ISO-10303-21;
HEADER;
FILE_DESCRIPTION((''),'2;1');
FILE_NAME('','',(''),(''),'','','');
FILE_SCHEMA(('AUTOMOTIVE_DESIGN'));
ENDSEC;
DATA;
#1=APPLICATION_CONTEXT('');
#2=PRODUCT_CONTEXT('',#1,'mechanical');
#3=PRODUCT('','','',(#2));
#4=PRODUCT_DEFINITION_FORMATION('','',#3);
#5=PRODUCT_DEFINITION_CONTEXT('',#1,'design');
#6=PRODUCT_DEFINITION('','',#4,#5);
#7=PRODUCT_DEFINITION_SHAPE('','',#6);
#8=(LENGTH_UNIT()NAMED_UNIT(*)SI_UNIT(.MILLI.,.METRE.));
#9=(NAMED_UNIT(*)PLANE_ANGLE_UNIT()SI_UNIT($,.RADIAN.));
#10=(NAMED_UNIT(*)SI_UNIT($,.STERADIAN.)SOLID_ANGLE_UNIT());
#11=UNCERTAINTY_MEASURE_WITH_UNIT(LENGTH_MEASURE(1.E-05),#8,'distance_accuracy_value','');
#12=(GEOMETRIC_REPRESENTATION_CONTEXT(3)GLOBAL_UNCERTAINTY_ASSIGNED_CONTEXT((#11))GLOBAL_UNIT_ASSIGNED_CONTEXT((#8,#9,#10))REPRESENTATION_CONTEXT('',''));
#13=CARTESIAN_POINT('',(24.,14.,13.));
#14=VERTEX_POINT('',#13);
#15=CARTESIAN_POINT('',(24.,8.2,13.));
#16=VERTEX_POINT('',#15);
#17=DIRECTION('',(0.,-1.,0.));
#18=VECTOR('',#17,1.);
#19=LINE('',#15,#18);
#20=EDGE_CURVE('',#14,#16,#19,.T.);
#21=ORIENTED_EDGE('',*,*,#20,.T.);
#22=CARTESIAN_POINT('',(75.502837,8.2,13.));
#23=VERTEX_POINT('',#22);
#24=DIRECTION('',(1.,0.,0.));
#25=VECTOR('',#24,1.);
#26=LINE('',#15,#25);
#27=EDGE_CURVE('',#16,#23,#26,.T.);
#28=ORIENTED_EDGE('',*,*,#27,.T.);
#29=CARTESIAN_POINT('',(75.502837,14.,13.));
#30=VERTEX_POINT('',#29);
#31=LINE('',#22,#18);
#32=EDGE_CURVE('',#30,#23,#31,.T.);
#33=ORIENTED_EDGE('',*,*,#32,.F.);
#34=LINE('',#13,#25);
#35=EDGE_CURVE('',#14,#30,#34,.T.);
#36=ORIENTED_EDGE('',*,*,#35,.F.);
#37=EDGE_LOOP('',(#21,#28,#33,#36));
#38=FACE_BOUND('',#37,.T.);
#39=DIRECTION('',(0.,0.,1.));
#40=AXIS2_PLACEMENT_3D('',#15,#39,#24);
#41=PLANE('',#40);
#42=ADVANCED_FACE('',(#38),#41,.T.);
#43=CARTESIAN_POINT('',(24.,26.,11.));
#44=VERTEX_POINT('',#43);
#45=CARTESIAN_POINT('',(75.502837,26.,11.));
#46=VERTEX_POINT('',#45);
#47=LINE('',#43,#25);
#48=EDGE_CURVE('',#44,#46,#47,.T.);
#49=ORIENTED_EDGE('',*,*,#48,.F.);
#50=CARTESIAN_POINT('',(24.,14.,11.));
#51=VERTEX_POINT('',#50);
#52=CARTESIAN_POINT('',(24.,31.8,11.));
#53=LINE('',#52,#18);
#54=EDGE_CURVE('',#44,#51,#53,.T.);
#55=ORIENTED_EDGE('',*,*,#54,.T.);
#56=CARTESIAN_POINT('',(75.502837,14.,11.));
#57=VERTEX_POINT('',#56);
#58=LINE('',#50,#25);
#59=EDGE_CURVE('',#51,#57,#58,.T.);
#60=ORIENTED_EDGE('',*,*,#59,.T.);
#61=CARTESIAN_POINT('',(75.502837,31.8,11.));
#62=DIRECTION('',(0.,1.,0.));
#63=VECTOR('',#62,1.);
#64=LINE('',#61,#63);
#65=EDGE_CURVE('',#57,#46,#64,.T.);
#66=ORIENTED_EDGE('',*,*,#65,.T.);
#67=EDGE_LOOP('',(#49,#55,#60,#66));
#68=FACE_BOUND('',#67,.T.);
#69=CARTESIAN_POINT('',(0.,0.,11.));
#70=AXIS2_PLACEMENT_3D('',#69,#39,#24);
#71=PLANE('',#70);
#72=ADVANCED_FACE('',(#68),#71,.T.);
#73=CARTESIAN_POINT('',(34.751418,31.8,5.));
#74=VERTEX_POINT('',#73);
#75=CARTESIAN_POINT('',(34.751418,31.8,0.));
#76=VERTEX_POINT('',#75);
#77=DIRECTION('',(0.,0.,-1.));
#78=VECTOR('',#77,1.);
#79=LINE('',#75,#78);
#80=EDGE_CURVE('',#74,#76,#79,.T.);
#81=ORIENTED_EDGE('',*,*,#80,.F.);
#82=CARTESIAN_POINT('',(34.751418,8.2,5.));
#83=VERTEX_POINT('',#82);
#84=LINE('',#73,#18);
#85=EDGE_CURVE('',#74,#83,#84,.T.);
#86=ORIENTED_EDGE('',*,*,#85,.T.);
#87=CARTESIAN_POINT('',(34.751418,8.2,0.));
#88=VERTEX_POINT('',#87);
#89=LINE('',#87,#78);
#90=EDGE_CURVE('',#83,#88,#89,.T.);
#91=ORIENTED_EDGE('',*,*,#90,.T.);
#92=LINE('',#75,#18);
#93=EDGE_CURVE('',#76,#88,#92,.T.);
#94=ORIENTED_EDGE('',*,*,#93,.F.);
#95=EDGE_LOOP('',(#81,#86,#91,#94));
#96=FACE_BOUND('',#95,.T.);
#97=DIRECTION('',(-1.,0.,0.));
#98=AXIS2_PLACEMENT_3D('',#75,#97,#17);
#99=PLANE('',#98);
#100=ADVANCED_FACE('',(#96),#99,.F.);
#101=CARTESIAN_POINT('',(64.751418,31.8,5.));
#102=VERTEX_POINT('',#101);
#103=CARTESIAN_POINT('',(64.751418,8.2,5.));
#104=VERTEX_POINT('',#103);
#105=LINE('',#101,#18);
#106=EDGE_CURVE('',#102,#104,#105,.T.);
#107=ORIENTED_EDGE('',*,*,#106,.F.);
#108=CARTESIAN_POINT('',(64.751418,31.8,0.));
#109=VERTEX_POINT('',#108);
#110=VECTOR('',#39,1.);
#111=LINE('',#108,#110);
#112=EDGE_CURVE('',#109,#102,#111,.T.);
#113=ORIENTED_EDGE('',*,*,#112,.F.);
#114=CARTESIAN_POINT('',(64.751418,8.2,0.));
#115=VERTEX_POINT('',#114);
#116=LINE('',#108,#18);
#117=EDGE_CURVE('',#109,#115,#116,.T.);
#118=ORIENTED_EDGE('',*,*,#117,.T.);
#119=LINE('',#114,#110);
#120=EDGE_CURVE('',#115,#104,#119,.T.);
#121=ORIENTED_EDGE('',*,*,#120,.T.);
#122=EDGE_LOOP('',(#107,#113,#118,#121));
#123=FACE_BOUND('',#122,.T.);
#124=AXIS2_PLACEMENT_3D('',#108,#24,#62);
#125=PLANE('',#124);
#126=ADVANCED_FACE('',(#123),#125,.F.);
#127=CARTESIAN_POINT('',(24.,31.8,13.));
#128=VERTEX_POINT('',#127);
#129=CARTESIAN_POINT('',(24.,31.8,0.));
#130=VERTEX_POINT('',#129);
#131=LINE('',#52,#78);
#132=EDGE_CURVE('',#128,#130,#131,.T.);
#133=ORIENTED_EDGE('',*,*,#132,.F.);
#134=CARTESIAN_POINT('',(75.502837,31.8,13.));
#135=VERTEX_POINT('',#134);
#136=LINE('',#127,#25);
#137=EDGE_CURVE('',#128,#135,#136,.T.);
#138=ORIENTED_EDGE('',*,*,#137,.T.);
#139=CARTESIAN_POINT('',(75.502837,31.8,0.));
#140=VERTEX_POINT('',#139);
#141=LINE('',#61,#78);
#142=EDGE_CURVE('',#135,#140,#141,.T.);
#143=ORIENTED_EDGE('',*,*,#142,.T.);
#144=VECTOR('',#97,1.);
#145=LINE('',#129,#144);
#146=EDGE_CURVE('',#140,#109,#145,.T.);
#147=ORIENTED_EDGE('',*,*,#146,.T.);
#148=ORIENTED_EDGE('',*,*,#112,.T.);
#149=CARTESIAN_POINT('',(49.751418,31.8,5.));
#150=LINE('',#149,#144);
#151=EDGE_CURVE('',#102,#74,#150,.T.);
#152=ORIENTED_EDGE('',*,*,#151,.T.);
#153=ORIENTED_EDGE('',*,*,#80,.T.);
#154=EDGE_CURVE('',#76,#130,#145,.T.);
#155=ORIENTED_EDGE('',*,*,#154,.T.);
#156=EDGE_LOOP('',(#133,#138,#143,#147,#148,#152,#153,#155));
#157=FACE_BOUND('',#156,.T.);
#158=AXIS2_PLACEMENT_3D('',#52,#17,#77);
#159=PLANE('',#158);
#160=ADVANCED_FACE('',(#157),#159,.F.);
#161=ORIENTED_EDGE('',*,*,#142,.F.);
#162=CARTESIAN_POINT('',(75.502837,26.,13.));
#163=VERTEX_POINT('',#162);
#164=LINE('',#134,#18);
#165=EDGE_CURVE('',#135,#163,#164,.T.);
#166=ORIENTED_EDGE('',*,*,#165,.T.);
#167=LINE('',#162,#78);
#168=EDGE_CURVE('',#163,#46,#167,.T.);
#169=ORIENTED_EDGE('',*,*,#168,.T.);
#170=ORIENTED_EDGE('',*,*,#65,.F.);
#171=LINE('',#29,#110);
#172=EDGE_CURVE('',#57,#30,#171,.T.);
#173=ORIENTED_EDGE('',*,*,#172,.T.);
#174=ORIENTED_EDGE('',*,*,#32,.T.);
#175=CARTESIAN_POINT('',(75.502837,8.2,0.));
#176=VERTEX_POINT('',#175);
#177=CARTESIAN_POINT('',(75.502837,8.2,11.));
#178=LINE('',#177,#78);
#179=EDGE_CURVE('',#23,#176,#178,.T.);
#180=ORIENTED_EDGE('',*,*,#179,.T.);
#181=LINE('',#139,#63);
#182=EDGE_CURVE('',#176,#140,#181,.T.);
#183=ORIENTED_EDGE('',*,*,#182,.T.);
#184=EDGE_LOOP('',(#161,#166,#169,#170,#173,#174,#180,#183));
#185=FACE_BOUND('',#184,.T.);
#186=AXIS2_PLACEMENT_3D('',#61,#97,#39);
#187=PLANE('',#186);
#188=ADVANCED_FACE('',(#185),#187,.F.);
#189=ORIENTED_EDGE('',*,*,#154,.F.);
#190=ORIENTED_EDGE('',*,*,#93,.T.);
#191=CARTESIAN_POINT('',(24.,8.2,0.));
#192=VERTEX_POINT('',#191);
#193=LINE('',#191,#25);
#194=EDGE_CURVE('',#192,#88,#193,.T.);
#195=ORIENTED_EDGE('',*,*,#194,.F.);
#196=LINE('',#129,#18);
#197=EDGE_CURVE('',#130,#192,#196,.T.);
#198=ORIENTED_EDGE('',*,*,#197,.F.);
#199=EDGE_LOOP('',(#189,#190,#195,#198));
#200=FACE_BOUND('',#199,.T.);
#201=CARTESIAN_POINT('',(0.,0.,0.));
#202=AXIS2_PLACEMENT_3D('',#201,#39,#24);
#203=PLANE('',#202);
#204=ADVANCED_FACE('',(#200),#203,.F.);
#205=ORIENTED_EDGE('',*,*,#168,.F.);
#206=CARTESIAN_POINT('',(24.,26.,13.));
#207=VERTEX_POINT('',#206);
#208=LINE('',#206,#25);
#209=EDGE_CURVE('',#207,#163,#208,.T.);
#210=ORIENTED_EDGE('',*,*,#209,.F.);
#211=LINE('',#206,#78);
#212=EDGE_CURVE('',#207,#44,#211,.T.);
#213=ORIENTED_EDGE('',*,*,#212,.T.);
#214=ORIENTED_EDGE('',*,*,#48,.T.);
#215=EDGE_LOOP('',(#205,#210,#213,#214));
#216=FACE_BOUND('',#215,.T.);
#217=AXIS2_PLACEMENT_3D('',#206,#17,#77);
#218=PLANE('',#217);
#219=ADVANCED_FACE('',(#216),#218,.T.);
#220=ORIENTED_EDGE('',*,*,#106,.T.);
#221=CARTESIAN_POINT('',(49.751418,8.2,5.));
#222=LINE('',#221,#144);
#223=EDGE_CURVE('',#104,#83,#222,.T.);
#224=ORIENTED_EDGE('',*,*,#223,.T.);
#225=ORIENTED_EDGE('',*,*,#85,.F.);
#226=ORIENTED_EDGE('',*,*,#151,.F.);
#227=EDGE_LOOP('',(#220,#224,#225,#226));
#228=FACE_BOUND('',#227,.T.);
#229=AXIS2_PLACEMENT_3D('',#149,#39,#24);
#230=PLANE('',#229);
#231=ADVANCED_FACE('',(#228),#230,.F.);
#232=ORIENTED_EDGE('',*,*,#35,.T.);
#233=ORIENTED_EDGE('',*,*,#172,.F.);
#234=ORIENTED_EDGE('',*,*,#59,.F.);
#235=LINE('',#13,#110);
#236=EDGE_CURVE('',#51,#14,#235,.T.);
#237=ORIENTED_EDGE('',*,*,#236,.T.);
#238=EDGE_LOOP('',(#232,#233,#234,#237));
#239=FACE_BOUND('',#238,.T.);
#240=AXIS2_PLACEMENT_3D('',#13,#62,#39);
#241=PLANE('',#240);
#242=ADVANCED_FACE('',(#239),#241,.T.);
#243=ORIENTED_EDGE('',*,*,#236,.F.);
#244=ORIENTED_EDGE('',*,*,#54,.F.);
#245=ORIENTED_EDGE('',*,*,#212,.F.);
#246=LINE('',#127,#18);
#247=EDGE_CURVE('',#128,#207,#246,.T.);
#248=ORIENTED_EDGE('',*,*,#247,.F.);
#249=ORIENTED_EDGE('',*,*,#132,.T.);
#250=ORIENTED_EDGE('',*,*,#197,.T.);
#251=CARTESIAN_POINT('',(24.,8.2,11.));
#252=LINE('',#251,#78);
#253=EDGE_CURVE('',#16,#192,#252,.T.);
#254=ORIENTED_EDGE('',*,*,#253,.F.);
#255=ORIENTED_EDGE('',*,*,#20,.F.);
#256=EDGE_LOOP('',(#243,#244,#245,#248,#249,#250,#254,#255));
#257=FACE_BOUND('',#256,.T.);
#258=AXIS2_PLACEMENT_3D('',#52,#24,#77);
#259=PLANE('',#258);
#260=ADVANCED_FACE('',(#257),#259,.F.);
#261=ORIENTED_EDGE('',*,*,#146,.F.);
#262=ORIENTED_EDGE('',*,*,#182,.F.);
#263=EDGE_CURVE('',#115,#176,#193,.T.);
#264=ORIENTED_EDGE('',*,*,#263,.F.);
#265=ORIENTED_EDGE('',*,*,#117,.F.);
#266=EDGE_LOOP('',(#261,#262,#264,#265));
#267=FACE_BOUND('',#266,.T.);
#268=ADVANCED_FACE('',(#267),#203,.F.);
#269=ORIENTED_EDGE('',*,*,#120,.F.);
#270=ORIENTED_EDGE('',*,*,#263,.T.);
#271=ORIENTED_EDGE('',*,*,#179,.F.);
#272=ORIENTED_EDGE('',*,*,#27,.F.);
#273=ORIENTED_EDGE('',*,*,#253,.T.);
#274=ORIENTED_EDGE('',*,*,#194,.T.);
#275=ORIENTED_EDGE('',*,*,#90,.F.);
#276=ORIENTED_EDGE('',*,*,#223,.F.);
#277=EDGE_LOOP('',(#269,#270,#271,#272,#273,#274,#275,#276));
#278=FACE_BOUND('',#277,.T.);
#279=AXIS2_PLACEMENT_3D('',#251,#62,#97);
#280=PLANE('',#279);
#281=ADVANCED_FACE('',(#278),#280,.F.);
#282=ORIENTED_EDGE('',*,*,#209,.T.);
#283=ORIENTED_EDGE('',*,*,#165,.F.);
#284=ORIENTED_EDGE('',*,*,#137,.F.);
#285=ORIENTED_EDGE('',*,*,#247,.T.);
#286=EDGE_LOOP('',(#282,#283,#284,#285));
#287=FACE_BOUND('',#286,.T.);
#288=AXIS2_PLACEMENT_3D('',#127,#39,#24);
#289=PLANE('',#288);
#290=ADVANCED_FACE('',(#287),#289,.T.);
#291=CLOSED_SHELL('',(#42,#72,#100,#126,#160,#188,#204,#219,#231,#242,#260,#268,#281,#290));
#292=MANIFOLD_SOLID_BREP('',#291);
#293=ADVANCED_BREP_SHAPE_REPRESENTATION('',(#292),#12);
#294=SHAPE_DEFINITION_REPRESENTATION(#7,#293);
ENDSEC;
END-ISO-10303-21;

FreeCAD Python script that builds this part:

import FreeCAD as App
import Part
import Sketcher


def add_polygon(sketch, points):
    """Adds a closed chain of lines whose ends are joined by coincident constraints."""
    first, n = sketch.GeometryCount, len(points)
    for a, b in zip(points, points[1:] + points[:1]):
        sketch.addGeometry(Part.LineSegment(App.Vector(*a, 0), App.Vector(*b, 0)), False)
    for i in range(n):
        sketch.addConstraint(Sketcher.Constraint("Coincident", first + i, 2, first + (i + 1) % n, 1))

doc = App.newDocument("Part")
body = doc.addObject("PartDesign::Body", "Body")

# Sketch on XY plane
sketch1 = body.newObject("Sketcher::SketchObject", "Sketch")
sketch1.AttachmentSupport = (doc.getObject("XY_Plane"), [""])
sketch1.MapMode = "FlatFace"
add_polygon(sketch1, [(24, 31.8), (24, 8.2), (75.502837, 8.2), (75.502837, 31.8)])  # lines 0-3
sketch1.addConstraint(Sketcher.Constraint("Vertical", 0))
sketch1.addConstraint(Sketcher.Constraint("Horizontal", 1))
sketch1.addConstraint(Sketcher.Constraint("Vertical", 2))
sketch1.addConstraint(Sketcher.Constraint("Horizontal", 3))
sketch1.addConstraint(Sketcher.Constraint("DistanceY", 0, 2, 0, 1, 23.6))
sketch1.addConstraint(Sketcher.Constraint("DistanceX", -1, 1, 0, 2, 24.0))
sketch1.addConstraint(Sketcher.Constraint("DistanceY", -1, 1, 0, 2, 8.2))
sketch1.addConstraint(Sketcher.Constraint("DistanceX", 1, 1, 1, 2, 51.502837))
pad1 = body.newObject("PartDesign::Pad", "Pad")
pad1.Profile = sketch1
pad1.Length = 11

# Sketch on YZ plane
sketch2 = body.newObject("Sketcher::SketchObject", "Sketch001")
sketch2.AttachmentSupport = (doc.getObject("YZ_Plane"), [""])
sketch2.MapMode = "FlatFace"
sketch2.AttachmentOffset = App.Placement(App.Vector(0, 0, 75.502837), App.Rotation())
add_polygon(sketch2, [(14, 13), (8.2, 13), (8.2, 11), (14, 11)])  # lines 0-3
add_polygon(sketch2, [(31.8, 13), (26, 13), (26, 11), (31.8, 11)])  # lines 4-7
sketch2.addConstraint(Sketcher.Constraint("Horizontal", 0))
sketch2.addConstraint(Sketcher.Constraint("Vertical", 1))
sketch2.addConstraint(Sketcher.Constraint("Horizontal", 2))
sketch2.addConstraint(Sketcher.Constraint("Vertical", 3))
sketch2.addConstraint(Sketcher.Constraint("Horizontal", 4))
sketch2.addConstraint(Sketcher.Constraint("Vertical", 5))
sketch2.addConstraint(Sketcher.Constraint("Horizontal", 6))
sketch2.addConstraint(Sketcher.Constraint("Vertical", 7))
sketch2.addConstraint(Sketcher.Constraint("Horizontal", 3, 2, 4, 2))
sketch2.addConstraint(Sketcher.Constraint("Horizontal", 2, 2, 5, 2))
sketch2.addConstraint(Sketcher.Constraint("Equal", 2, 4))
sketch2.addConstraint(Sketcher.Constraint("DistanceY", 1, 2, 1, 1, 2.0))
sketch2.addConstraint(Sketcher.Constraint("DistanceX", 0, 2, 0, 1, 5.8))
sketch2.addConstraint(Sketcher.Constraint("DistanceY", -1, 1, 0, 2, 13.0))
sketch2.addConstraint(Sketcher.Constraint("DistanceX", -1, 1, 2, 2, 14.0))
sketch2.addConstraint(Sketcher.Constraint("DistanceX", -1, 1, 4, 2, 26.0))
pad2 = body.newObject("PartDesign::Pad", "Pad001")
pad2.Profile = sketch2
pad2.Length = 51.502837
pad2.Reversed = True

# Sketch on XZ plane
sketch3 = body.newObject("Sketcher::SketchObject", "Sketch002")
sketch3.AttachmentSupport = (doc.getObject("XZ_Plane"), [""])
sketch3.MapMode = "FlatFace"
sketch3.AttachmentOffset = App.Placement(App.Vector(0, 0, -31.8), App.Rotation())
add_polygon(sketch3, [(34.751418, 0), (64.751418, 0), (64.751418, 5), (34.751418, 5)])  # lines 0-3
sketch3.addConstraint(Sketcher.Constraint("Horizontal", 0))
sketch3.addConstraint(Sketcher.Constraint("Vertical", 1))
sketch3.addConstraint(Sketcher.Constraint("Horizontal", 2))
sketch3.addConstraint(Sketcher.Constraint("Vertical", 3))
sketch3.addConstraint(Sketcher.Constraint("PointOnObject", 0, 2, -1))
sketch3.addConstraint(Sketcher.Constraint("DistanceX", 0, 1, 0, 2, 30.0))
sketch3.addConstraint(Sketcher.Constraint("DistanceY", 1, 1, 1, 2, 5.0))
sketch3.addConstraint(Sketcher.Constraint("DistanceX", -1, 1, 0, 2, 64.751418))
pocket1 = body.newObject("PartDesign::Pocket", "Pocket")
pocket1.Profile = sketch3
pocket1.Length = 23.6
pocket1.Reversed = True

doc.recompute()
